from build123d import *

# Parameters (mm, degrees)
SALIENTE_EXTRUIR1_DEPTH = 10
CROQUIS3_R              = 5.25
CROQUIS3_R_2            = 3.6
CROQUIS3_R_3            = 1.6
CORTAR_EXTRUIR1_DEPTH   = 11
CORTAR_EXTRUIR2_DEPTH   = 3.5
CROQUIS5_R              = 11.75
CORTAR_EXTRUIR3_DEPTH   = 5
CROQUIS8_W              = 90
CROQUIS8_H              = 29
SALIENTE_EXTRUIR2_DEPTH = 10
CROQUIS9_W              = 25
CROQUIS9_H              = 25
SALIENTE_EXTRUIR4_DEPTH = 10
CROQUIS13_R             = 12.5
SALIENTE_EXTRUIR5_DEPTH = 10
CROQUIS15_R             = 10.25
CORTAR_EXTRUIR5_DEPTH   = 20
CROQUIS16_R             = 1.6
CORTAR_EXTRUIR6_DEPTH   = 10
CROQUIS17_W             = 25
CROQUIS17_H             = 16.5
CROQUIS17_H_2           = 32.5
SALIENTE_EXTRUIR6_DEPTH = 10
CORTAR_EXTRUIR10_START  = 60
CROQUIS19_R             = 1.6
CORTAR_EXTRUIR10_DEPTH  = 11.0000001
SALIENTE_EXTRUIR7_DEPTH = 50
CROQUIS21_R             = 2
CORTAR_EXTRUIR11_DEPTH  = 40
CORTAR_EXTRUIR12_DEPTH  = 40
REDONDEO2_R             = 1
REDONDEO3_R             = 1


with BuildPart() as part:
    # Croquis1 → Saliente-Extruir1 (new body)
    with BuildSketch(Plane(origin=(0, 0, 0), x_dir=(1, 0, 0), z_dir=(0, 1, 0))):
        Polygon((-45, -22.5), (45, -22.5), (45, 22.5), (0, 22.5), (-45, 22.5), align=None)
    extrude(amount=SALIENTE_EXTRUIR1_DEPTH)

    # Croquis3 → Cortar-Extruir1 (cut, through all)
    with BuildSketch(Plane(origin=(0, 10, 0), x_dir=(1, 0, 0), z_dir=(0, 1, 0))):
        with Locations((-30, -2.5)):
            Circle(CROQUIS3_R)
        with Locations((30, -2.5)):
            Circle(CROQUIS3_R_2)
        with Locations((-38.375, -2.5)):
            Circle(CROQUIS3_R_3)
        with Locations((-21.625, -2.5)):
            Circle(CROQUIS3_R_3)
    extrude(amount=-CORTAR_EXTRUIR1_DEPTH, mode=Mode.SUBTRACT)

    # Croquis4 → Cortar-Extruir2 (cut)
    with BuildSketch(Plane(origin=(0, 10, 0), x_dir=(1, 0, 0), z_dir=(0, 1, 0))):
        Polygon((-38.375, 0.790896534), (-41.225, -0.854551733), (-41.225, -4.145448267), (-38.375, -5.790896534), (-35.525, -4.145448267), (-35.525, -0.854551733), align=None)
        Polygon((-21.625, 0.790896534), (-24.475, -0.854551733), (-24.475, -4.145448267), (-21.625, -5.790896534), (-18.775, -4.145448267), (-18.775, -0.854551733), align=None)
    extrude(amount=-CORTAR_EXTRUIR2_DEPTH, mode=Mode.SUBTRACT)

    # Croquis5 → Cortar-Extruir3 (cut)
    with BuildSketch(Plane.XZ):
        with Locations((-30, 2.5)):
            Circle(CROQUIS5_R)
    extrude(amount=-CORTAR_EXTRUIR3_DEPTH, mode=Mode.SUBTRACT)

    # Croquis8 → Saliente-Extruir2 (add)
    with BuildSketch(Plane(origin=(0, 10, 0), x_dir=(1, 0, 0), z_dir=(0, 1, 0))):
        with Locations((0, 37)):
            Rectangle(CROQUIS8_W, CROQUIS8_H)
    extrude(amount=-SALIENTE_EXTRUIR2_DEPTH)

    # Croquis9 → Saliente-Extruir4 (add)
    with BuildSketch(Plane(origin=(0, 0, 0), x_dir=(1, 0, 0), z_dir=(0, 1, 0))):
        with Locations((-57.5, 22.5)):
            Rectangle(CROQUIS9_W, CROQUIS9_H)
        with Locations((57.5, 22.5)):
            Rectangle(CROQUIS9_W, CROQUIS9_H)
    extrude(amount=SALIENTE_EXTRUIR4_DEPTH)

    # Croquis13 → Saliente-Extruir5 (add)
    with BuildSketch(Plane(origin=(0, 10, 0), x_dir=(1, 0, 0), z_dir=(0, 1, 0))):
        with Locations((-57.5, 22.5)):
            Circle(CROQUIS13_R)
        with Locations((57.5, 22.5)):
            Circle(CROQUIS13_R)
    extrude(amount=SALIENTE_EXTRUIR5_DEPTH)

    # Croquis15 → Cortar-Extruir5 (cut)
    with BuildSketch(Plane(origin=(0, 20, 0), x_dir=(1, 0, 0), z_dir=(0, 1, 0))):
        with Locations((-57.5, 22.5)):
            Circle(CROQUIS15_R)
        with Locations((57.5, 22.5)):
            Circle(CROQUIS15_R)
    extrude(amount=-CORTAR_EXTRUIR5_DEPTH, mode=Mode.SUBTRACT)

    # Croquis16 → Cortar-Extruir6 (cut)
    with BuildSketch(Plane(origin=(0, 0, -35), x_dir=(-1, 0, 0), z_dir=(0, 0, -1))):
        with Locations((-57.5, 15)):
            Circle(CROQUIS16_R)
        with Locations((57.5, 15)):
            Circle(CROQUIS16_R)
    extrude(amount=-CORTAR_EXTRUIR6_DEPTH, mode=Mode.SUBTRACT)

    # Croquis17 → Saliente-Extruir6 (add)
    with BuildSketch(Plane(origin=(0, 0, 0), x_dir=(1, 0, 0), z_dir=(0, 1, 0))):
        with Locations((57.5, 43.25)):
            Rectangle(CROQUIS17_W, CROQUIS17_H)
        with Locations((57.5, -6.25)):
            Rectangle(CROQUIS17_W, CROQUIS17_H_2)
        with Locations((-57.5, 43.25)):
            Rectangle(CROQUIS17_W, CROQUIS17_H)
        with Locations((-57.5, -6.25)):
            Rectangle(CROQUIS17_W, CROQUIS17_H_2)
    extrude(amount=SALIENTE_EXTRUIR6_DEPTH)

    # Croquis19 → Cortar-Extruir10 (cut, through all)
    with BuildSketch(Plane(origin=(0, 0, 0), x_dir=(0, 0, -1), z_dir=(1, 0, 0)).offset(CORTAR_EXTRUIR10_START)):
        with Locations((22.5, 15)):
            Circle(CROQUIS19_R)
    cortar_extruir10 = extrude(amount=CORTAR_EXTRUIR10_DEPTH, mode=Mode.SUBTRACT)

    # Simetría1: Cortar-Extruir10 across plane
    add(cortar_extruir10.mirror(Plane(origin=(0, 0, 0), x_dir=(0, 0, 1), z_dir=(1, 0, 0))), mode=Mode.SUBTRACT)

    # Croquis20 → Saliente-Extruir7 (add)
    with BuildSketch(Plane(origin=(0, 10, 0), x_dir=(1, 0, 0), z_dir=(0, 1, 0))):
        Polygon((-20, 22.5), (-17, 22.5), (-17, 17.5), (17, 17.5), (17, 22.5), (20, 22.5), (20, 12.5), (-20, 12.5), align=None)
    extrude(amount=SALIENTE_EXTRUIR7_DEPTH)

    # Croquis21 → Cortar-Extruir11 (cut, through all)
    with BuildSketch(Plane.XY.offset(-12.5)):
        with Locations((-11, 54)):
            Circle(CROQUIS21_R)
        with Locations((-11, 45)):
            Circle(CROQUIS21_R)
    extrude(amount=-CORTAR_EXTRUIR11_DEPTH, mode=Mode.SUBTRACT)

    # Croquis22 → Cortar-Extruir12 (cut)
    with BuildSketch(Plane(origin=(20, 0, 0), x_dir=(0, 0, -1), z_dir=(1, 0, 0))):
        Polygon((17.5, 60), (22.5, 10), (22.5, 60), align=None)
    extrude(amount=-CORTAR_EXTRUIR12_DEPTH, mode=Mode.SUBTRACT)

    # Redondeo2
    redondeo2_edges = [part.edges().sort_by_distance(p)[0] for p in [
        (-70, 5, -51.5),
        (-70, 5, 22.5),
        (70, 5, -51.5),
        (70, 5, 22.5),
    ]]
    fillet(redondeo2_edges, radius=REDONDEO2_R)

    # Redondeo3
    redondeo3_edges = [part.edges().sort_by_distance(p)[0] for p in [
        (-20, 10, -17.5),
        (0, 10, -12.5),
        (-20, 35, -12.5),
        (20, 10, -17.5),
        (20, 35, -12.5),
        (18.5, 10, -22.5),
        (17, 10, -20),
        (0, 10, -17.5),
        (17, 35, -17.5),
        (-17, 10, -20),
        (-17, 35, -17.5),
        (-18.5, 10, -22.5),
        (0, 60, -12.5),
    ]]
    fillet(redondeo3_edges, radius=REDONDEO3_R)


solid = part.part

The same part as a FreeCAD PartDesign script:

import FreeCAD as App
import Part
import Sketcher

V = App.Vector
Q = App.Units.Quantity


def edges_at(feature, points):
    """Names of the edges that pass closest to the given points."""
    edges = feature.Shape.Edges
    near = lambda p: min(range(len(edges)), key=lambda i: edges[i].distToShape(Part.Vertex(*p))[0])
    return sorted({f"Edge{near(p) + 1}" for p in points})

doc = App.newDocument("Part")
body = doc.addObject("PartDesign::Body", "Body")

# Sketch on XZ plane
sketch1 = body.newObject("Sketcher::SketchObject", "Sketch")
sketch1.AttachmentSupport = (doc.getObject("XZ_Plane"), [""])
sketch1.MapMode = "FlatFace"
sketch1.addGeometry(Part.LineSegment(V(-45, 22, 0), V(45, 22, 0)), False)
sketch1.addGeometry(Part.LineSegment(V(45, 22, 0), V(45, -22, 0)), False)
sketch1.addGeometry(Part.LineSegment(V(45, -22, 0), V(-45, -22, 0)), False)
sketch1.addGeometry(Part.LineSegment(V(-45, -22, 0), V(-45, 22, 0)), False)
sketch1.addConstraint(Sketcher.Constraint("Coincident", 0, 2, 1, 1))
sketch1.addConstraint(Sketcher.Constraint("Coincident", 1, 2, 2, 1))
sketch1.addConstraint(Sketcher.Constraint("Coincident", 2, 2, 3, 1))
sketch1.addConstraint(Sketcher.Constraint("Coincident", 3, 2, 0, 1))
sketch1.addConstraint(Sketcher.Constraint("Horizontal", 0))
sketch1.addConstraint(Sketcher.Constraint("Vertical", 1))
sketch1.addConstraint(Sketcher.Constraint("Horizontal", 2))
sketch1.addConstraint(Sketcher.Constraint("Vertical", 3))
sketch1.addConstraint(Sketcher.Constraint("Symmetric", 0, 2, 2, 2, -1, 1))
sketch1.addConstraint(Sketcher.Constraint("DistanceX", 0, 1, 0, 2, Q("90 mm")))
sketch1.addConstraint(Sketcher.Constraint("DistanceY", 1, 2, 1, 1, Q("45 mm")))
pad1 = body.newObject("PartDesign::Pad", "Pad")
pad1.Profile = sketch1
pad1.Length = 10
pad1.Reversed = True

# Sketch on XZ plane
sketch2 = body.newObject("Sketcher::SketchObject", "Sketch001")
sketch2.AttachmentSupport = (doc.getObject("XZ_Plane"), [""])
sketch2.MapMode = "FlatFace"
sketch2.AttachmentOffset = App.Placement(V(0, 0, -10), App.Rotation())
sketch2.addGeometry(Part.Circle(V(-30, 2.5, 0), V(0, 0, 1), 5.2), False)
sketch2.addGeometry(Part.Circle(V(30, 2.5, 0), V(0, 0, 1), 3.6), False)
sketch2.addGeometry(Part.Circle(V(-38.4, 2.5, 0), V(0, 0, 1), 1.6), False)
sketch2.addGeometry(Part.Circle(V(-21.6, 2.5, 0), V(0, 0, 1), 1.6), False)
sketch2.addConstraint(Sketcher.Constraint("Equal", 2, 3))
sketch2.addConstraint(Sketcher.Constraint("Symmetric", 0, 3, 1, 3, -2))
sketch2.addConstraint(Sketcher.Constraint("Horizontal", 1, 3, 2, 3))
sketch2.addConstraint(Sketcher.Constraint("Horizontal", 2, 3, 3, 3))
sketch2.addConstraint(Sketcher.Constraint("Diameter", 0, Q("10.5 mm")))
sketch2.addConstraint(Sketcher.Constraint("Diameter", 1, Q("7.2 mm")))
sketch2.addConstraint(Sketcher.Constraint("Diameter", 2, Q("3.2 mm")))
sketch2.addConstraint(Sketcher.Constraint("DistanceX", 0, 3, -1, 1, Q("30 mm")))
sketch2.addConstraint(Sketcher.Constraint("DistanceY", -1, 1, 0, 3, Q("2.5 mm")))
sketch2.addConstraint(Sketcher.Constraint("DistanceX", 2, 3, 3, 3, Q("16.75 mm")))
sketch2.addConstraint(Sketcher.Constraint("DistanceX", 2, 3, -1, 1, Q("38.375 mm")))
pocket1 = body.newObject("PartDesign::Pocket", "Pocket")
pocket1.Profile = sketch2
pocket1.Type = "ThroughAll"
pocket1.Reversed = True

# Sketch on XZ plane
sketch3 = body.newObject("Sketcher::SketchObject", "Sketch002")
sketch3.AttachmentSupport = (doc.getObject("XZ_Plane"), [""])
sketch3.MapMode = "FlatFace"
sketch3.AttachmentOffset = App.Placement(V(0, 0, -10), App.Rotation())
sketch3.addGeometry(Part.LineSegment(V(-38.4, -0.8, 0), V(-41.2, 0.9, 0)), False)
sketch3.addGeometry(Part.LineSegment(V(-41.2, 0.9, 0), V(-41.2, 4.1, 0)), False)
sketch3.addGeometry(Part.LineSegment(V(-41.2, 4.1, 0), V(-38.4, 5.8, 0)), False)
sketch3.addGeometry(Part.LineSegment(V(-38.4, 5.8, 0), V(-35.5, 4.1, 0)), False)
sketch3.addGeometry(Part.LineSegment(V(-35.5, 4.1, 0), V(-35.5, 0.9, 0)), False)
sketch3.addGeometry(Part.LineSegment(V(-35.5, 0.9, 0), V(-38.4, -0.8, 0)), False)
sketch3.addGeometry(Part.LineSegment(V(-21.6, -0.8, 0), V(-24.5, 0.9, 0)), False)
sketch3.addGeometry(Part.LineSegment(V(-24.5, 0.9, 0), V(-24.5, 4.1, 0)), False)
sketch3.addGeometry(Part.LineSegment(V(-24.5, 4.1, 0), V(-21.6, 5.8, 0)), False)
sketch3.addGeometry(Part.LineSegment(V(-21.6, 5.8, 0), V(-18.8, 4.1, 0)), False)
sketch3.addGeometry(Part.LineSegment(V(-18.8, 4.1, 0), V(-18.8, 0.9, 0)), False)
sketch3.addGeometry(Part.LineSegment(V(-18.8, 0.9, 0), V(-21.6, -0.8, 0)), False)
sketch3.addConstraint(Sketcher.Constraint("Coincident", 0, 2, 1, 1))
sketch3.addConstraint(Sketcher.Constraint("Coincident", 1, 2, 2, 1))
sketch3.addConstraint(Sketcher.Constraint("Coincident", 2, 2, 3, 1))
sketch3.addConstraint(Sketcher.Constraint("Coincident", 3, 2, 4, 1))
sketch3.addConstraint(Sketcher.Constraint("Coincident", 4, 2, 5, 1))
sketch3.addConstraint(Sketcher.Constraint("Coincident", 5, 2, 0, 1))
sketch3.addConstraint(Sketcher.Constraint("Coincident", 6, 2, 7, 1))
sketch3.addConstraint(Sketcher.Constraint("Coincident", 7, 2, 8, 1))
sketch3.addConstraint(Sketcher.Constraint("Coincident", 8, 2, 9, 1))
sketch3.addConstraint(Sketcher.Constraint("Coincident", 9, 2, 10, 1))
sketch3.addConstraint(Sketcher.Constraint("Coincident", 10, 2, 11, 1))
sketch3.addConstraint(Sketcher.Constraint("Coincident", 11, 2, 6, 1))
sketch3.addConstraint(Sketcher.Constraint("Vertical", 1))
sketch3.addConstraint(Sketcher.Constraint("Vertical", 4))
sketch3.addConstraint(Sketcher.Constraint("Vertical", 7))
sketch3.addConstraint(Sketcher.Constraint("Vertical", 10))
sketch3.addConstraint(Sketcher.Constraint("Parallel", 0, 3))
sketch3.addConstraint(Sketcher.Constraint("Parallel", 2, 5))
sketch3.addConstraint(Sketcher.Constraint("Parallel", 3, 6))
sketch3.addConstraint(Sketcher.Constraint("Parallel", 5, 8))
sketch3.addConstraint(Sketcher.Constraint("Parallel", 6, 9))
sketch3.addConstraint(Sketcher.Constraint("Parallel", 8, 11))
sketch3.addConstraint(Sketcher.Constraint("Horizontal", 1, 2, 3, 2))
sketch3.addConstraint(Sketcher.Constraint("Horizontal", 0, 2, 4, 2))
sketch3.addConstraint(Sketcher.Constraint("Horizontal", 4, 2, 6, 2))
sketch3.addConstraint(Sketcher.Constraint("Horizontal", 3, 2, 7, 2))
sketch3.addConstraint(Sketcher.Constraint("Horizontal", 2, 2, 8, 2))
sketch3.addConstraint(Sketcher.Constraint("Horizontal", 7, 2, 9, 2))
sketch3.addConstraint(Sketcher.Constraint("Horizontal", 6, 2, 10, 2))
sketch3.addConstraint(Sketcher.Constraint("Vertical", 2, 2, 5, 2))
sketch3.addConstraint(Sketcher.Constraint("Angle", 0, Q("150 deg")))
sketch3.addConstraint(Sketcher.Constraint("DistanceX", 1, 2, 3, 2, Q("5.7 mm")))
sketch3.addConstraint(Sketcher.Constraint("DistanceX", 5, 2, 6, 2, Q("13.9 mm")))
sketch3.addConstraint(Sketcher.Constraint("DistanceX", 0, 2, -1, 1, Q("41.225 mm")))
sketch3.addConstraint(Sketcher.Constraint("DistanceY", 1, 1, 1, 2, Q("3.290897 mm")))
sketch3.addConstraint(Sketcher.Constraint("DistanceY", -1, 1, 0, 2, Q("0.854552 mm")))
pocket2 = body.newObject("PartDesign::Pocket", "Pocket001")
pocket2.Profile = sketch3
pocket2.Length = 3.5
pocket2.Reversed = True

# Sketch on XZ plane
sketch4 = body.newObject("Sketcher::SketchObject", "Sketch003")
sketch4.AttachmentSupport = (doc.getObject("XZ_Plane"), [""])
sketch4.MapMode = "FlatFace"
sketch4.addGeometry(Part.Circle(V(-30, 2, 0), V(0, 0, 1), 12), False)
sketch4.addConstraint(Sketcher.Constraint("Diameter", 0, Q("23.5 mm")))
sketch4.addConstraint(Sketcher.Constraint("DistanceX", 0, 3, -1, 1, Q("30 mm")))
sketch4.addConstraint(Sketcher.Constraint("DistanceY", -1, 1, 0, 3, Q("2.5 mm")))
pocket3 = body.newObject("PartDesign::Pocket", "Pocket002")
pocket3.Profile = sketch4
pocket3.Length = 5

# Sketch on XZ plane
sketch5 = body.newObject("Sketcher::SketchObject", "Sketch004")
sketch5.AttachmentSupport = (doc.getObject("XZ_Plane"), [""])
sketch5.MapMode = "FlatFace"
sketch5.AttachmentOffset = App.Placement(V(0, 0, -10), App.Rotation())
sketch5.addGeometry(Part.LineSegment(V(-45, -52, 0), V(-45, -22, 0)), False)
sketch5.addGeometry(Part.LineSegment(V(-45, -22, 0), V(45, -22, 0)), False)
sketch5.addGeometry(Part.LineSegment(V(45, -22, 0), V(45, -52, 0)), False)
sketch5.addGeometry(Part.LineSegment(V(45, -52, 0), V(-45, -52, 0)), False)
sketch5.addConstraint(Sketcher.Constraint("Coincident", 0, 2, 1, 1))
sketch5.addConstraint(Sketcher.Constraint("Coincident", 1, 2, 2, 1))
sketch5.addConstraint(Sketcher.Constraint("Coincident", 2, 2, 3, 1))
sketch5.addConstraint(Sketcher.Constraint("Coincident", 3, 2, 0, 1))
sketch5.addConstraint(Sketcher.Constraint("Vertical", 0))
sketch5.addConstraint(Sketcher.Constraint("Horizontal", 1))
sketch5.addConstraint(Sketcher.Constraint("Vertical", 2))
sketch5.addConstraint(Sketcher.Constraint("Horizontal", 3))
sketch5.addConstraint(Sketcher.Constraint("DistanceX", 1, 1, 1, 2, Q("90 mm")))
sketch5.addConstraint(Sketcher.Constraint("DistanceY", 0, 1, 0, 2, Q("29 mm")))
sketch5.addConstraint(Sketcher.Constraint("DistanceX", 0, 2, -1, 1, Q("45 mm")))
sketch5.addConstraint(Sketcher.Constraint("DistanceY", 0, 2, -1, 1, Q("22.5 mm")))
pad2 = body.newObject("PartDesign::Pad", "Pad001")
pad2.Profile = sketch5
pad2.Length = 10

# Sketch on XZ plane
sketch6 = body.newObject("Sketcher::SketchObject", "Sketch005")
sketch6.AttachmentSupport = (doc.getObject("XZ_Plane"), [""])
sketch6.MapMode = "FlatFace"
sketch6.addGeometry(Part.LineSegment(V(-70, -35, 0), V(-70, -10, 0)), False)
sketch6.addGeometry(Part.LineSegment(V(-70, -10, 0), V(-45, -10, 0)), False)
sketch6.addGeometry(Part.LineSegment(V(-45, -10, 0), V(-45, -35, 0)), False)
sketch6.addGeometry(Part.LineSegment(V(-45, -35, 0), V(-70, -35, 0)), False)
sketch6.addGeometry(Part.LineSegment(V(45, -35, 0), V(45, -10, 0)), False)
sketch6.addGeometry(Part.LineSegment(V(45, -10, 0), V(70, -10, 0)), False)
sketch6.addGeometry(Part.LineSegment(V(70, -10, 0), V(70, -35, 0)), False)
sketch6.addGeometry(Part.LineSegment(V(70, -35, 0), V(45, -35, 0)), False)
sketch6.addConstraint(Sketcher.Constraint("Coincident", 0, 2, 1, 1))
sketch6.addConstraint(Sketcher.Constraint("Coincident", 1, 2, 2, 1))
sketch6.addConstraint(Sketcher.Constraint("Coincident", 2, 2, 3, 1))
sketch6.addConstraint(Sketcher.Constraint("Coincident", 3, 2, 0, 1))
sketch6.addConstraint(Sketcher.Constraint("Coincident", 4, 2, 5, 1))
sketch6.addConstraint(Sketcher.Constraint("Coincident", 5, 2, 6, 1))
sketch6.addConstraint(Sketcher.Constraint("Coincident", 6, 2, 7, 1))
sketch6.addConstraint(Sketcher.Constraint("Coincident", 7, 2, 4, 1))
sketch6.addConstraint(Sketcher.Constraint("Vertical", 0))
sketch6.addConstraint(Sketcher.Constraint("Horizontal", 1))
sketch6.addConstraint(Sketcher.Constraint("Vertical", 2))
sketch6.addConstraint(Sketcher.Constraint("Horizontal", 3))
sketch6.addConstraint(Sketcher.Constraint("Vertical", 4))
sketch6.addConstraint(Sketcher.Constraint("Horizontal", 5))
sketch6.addConstraint(Sketcher.Constraint("Vertical", 6))
sketch6.addConstraint(Sketcher.Constraint("Horizontal", 7))
sketch6.addConstraint(Sketcher.Constraint("Symmetric", 1, 2, 4, 2, -2))
sketch6.addConstraint(Sketcher.Constraint("Symmetric", 3, 2, 6, 2, -2))
sketch6.addConstraint(Sketcher.Constraint("Equal", 7, 0))
sketch6.addConstraint(Sketcher.Constraint("DistanceX", 1, 1, 1, 2, Q("25 mm")))
sketch6.addConstraint(Sketcher.Constraint("DistanceX", 0, 2, -1, 1, Q("70 mm")))
sketch6.addConstraint(Sketcher.Constraint("DistanceY", 0, 2, -1, 1, Q("10 mm")))
pad3 = body.newObject("PartDesign::Pad", "Pad002")
pad3.Profile = sketch6
pad3.Length = 10
pad3.Reversed = True

# Sketch on XZ plane
sketch7 = body.newObject("Sketcher::SketchObject", "Sketch006")
sketch7.AttachmentSupport = (doc.getObject("XZ_Plane"), [""])
sketch7.MapMode = "FlatFace"
sketch7.AttachmentOffset = App.Placement(V(0, 0, -10), App.Rotation())
sketch7.addGeometry(Part.Circle(V(-58, -22, 0), V(0, 0, 1), 12), False)
sketch7.addGeometry(Part.Circle(V(58, -22, 0), V(0, 0, 1), 12), False)
sketch7.addConstraint(Sketcher.Constraint("Equal", 0, 1))
sketch7.addConstraint(Sketcher.Constraint("Symmetric", 0, 3, 1, 3, -2))
sketch7.addConstraint(Sketcher.Constraint("Diameter", 0, Q("25 mm")))
sketch7.addConstraint(Sketcher.Constraint("DistanceX", 0, 3, 1, 3, Q("115 mm")))
sketch7.addConstraint(Sketcher.Constraint("DistanceY", 0, 3, -1, 1, Q("22.5 mm")))
pad4 = body.newObject("PartDesign::Pad", "Pad003")
pad4.Profile = sketch7
pad4.Length = 10
pad4.Reversed = True

# Sketch on XZ plane
sketch8 = body.newObject("Sketcher::SketchObject", "Sketch007")
sketch8.AttachmentSupport = (doc.getObject("XZ_Plane"), [""])
sketch8.MapMode = "FlatFace"
sketch8.AttachmentOffset = App.Placement(V(0, 0, -20), App.Rotation())
sketch8.addGeometry(Part.Circle(V(-58, -22, 0), V(0, 0, 1), 10), False)
sketch8.addGeometry(Part.Circle(V(58, -22, 0), V(0, 0, 1), 10), False)
sketch8.addConstraint(Sketcher.Constraint("Equal", 0, 1))
sketch8.addConstraint(Sketcher.Constraint("Symmetric", 0, 3, 1, 3, -2))
sketch8.addConstraint(Sketcher.Constraint("Diameter", 0, Q("20.5 mm")))
sketch8.addConstraint(Sketcher.Constraint("DistanceX", 0, 3, 1, 3, Q("115 mm")))
sketch8.addConstraint(Sketcher.Constraint("DistanceY", 0, 3, -1, 1, Q("22.5 mm")))
pocket4 = body.newObject("PartDesign::Pocket", "Pocket003")
pocket4.Profile = sketch8
pocket4.Length = 20
pocket4.Reversed = True

# Sketch on XY plane
sketch9 = body.newObject("Sketcher::SketchObject", "Sketch008")
sketch9.AttachmentSupport = (doc.getObject("XY_Plane"), [""])
sketch9.MapMode = "FlatFace"
sketch9.AttachmentOffset = App.Placement(V(0, 0, -35), App.Rotation())
sketch9.addGeometry(Part.Circle(V(57.5, 15, 0), V(0, 0, 1), 1.6), False)
sketch9.addGeometry(Part.Circle(V(-57.5, 15, 0), V(0, 0, 1), 1.6), False)
sketch9.addConstraint(Sketcher.Constraint("Equal", 0, 1))
sketch9.addConstraint(Sketcher.Constraint("Symmetric", 0, 3, 1, 3, -2))
sketch9.addConstraint(Sketcher.Constraint("Diameter", 0, Q("3.2 mm")))
sketch9.addConstraint(Sketcher.Constraint("DistanceY", -1, 1, 0, 3, Q("15 mm")))
sketch9.addConstraint(Sketcher.Constraint("DistanceX", 1, 3, 0, 3, Q("115 mm")))
pocket5 = body.newObject("PartDesign::Pocket", "Pocket004")
pocket5.Profile = sketch9
pocket5.Length = 10
pocket5.Reversed = True

# Sketch on XZ plane
sketch10 = body.newObject("Sketcher::SketchObject", "Sketch009")
sketch10.AttachmentSupport = (doc.getObject("XZ_Plane"), [""])
sketch10.MapMode = "FlatFace"
sketch10.addGeometry(Part.LineSegment(V(45, -52, 0), V(45, -35, 0)), False)
sketch10.addGeometry(Part.LineSegment(V(45, -35, 0), V(70, -35, 0)), False)
sketch10.addGeometry(Part.LineSegment(V(70, -35, 0), V(70, -52, 0)), False)
sketch10.addGeometry(Part.LineSegment(V(70, -52, 0), V(45, -52, 0)), False)
sketch10.addGeometry(Part.LineSegment(V(45, -10, 0), V(45, 22, 0)), False)
sketch10.addGeometry(Part.LineSegment(V(45, 22, 0), V(70, 22, 0)), False)
sketch10.addGeometry(Part.LineSegment(V(70, 22, 0), V(70, -10, 0)), False)
sketch10.addGeometry(Part.LineSegment(V(70, -10, 0), V(45, -10, 0)), False)
sketch10.addGeometry(Part.LineSegment(V(-70, -52, 0), V(-70, -35, 0)), False)
sketch10.addGeometry(Part.LineSegment(V(-70, -35, 0), V(-45, -35, 0)), False)
sketch10.addGeometry(Part.LineSegment(V(-45, -35, 0), V(-45, -52, 0)), False)
sketch10.addGeometry(Part.LineSegment(V(-45, -52, 0), V(-70, -52, 0)), False)
sketch10.addGeometry(Part.LineSegment(V(-70, -10, 0), V(-70, 22, 0)), False)
sketch10.addGeometry(Part.LineSegment(V(-70, 22, 0), V(-45, 22, 0)), False)
sketch10.addGeometry(Part.LineSegment(V(-45, 22, 0), V(-45, -10, 0)), False)
sketch10.addGeometry(Part.LineSegment(V(-45, -10, 0), V(-70, -10, 0)), False)
sketch10.addConstraint(Sketcher.Constraint("Coincident", 0, 2, 1, 1))
sketch10.addConstraint(Sketcher.Constraint("Coincident", 1, 2, 2, 1))
sketch10.addConstraint(Sketcher.Constraint("Coincident", 2, 2, 3, 1))
sketch10.addConstraint(Sketcher.Constraint("Coincident", 3, 2, 0, 1))
sketch10.addConstraint(Sketcher.Constraint("Coincident", 4, 2, 5, 1))
sketch10.addConstraint(Sketcher.Constraint("Coincident", 5, 2, 6, 1))
sketch10.addConstraint(Sketcher.Constraint("Coincident", 6, 2, 7, 1))
sketch10.addConstraint(Sketcher.Constraint("Coincident", 7, 2, 4, 1))
sketch10.addConstraint(Sketcher.Constraint("Coincident", 8, 2, 9, 1))
sketch10.addConstraint(Sketcher.Constraint("Coincident", 9, 2, 10, 1))
sketch10.addConstraint(Sketcher.Constraint("Coincident", 10, 2, 11, 1))
sketch10.addConstraint(Sketcher.Constraint("Coincident", 11, 2, 8, 1))
sketch10.addConstraint(Sketcher.Constraint("Coincident", 12, 2, 13, 1))
sketch10.addConstraint(Sketcher.Constraint("Coincident", 13, 2, 14, 1))
sketch10.addConstraint(Sketcher.Constraint("Coincident", 14, 2, 15, 1))
sketch10.addConstraint(Sketcher.Constraint("Coincident", 15, 2, 12, 1))
sketch10.addConstraint(Sketcher.Constraint("Vertical", 0))
sketch10.addConstraint(Sketcher.Constraint("Horizontal", 1))
sketch10.addConstraint(Sketcher.Constraint("Vertical", 2))
sketch10.addConstraint(Sketcher.Constraint("Horizontal", 3))
sketch10.addConstraint(Sketcher.Constraint("Vertical", 4))
sketch10.addConstraint(Sketcher.Constraint("Horizontal", 5))
sketch10.addConstraint(Sketcher.Constraint("Vertical", 6))
sketch10.addConstraint(Sketcher.Constraint("Horizontal", 7))
sketch10.addConstraint(Sketcher.Constraint("Vertical", 8))
sketch10.addConstraint(Sketcher.Constraint("Horizontal", 9))
sketch10.addConstraint(Sketcher.Constraint("Vertical", 10))
sketch10.addConstraint(Sketcher.Constraint("Horizontal", 11))
sketch10.addConstraint(Sketcher.Constraint("Vertical", 12))
sketch10.addConstraint(Sketcher.Constraint("Horizontal", 13))
sketch10.addConstraint(Sketcher.Constraint("Vertical", 14))
sketch10.addConstraint(Sketcher.Constraint("Horizontal", 15))
sketch10.addConstraint(Sketcher.Constraint("Symmetric", 1, 2, 8, 2, -2))
sketch10.addConstraint(Sketcher.Constraint("Symmetric", 3, 2, 10, 2, -2))
sketch10.addConstraint(Sketcher.Constraint("Symmetric", 5, 2, 12, 2, -2))
sketch10.addConstraint(Sketcher.Constraint("Symmetric", 7, 2, 14, 2, -2))
sketch10.addConstraint(Sketcher.Constraint("Vertical", 3, 2, 4, 2))
sketch10.addConstraint(Sketcher.Constraint("Vertical", 2, 2, 5, 2))
sketch10.addConstraint(Sketcher.Constraint("DistanceX", 1, 1, 1, 2, Q("25 mm")))
sketch10.addConstraint(Sketcher.Constraint("DistanceY", 0, 1, 0, 2, Q("16.5 mm")))
sketch10.addConstraint(Sketcher.Constraint("DistanceY", 4, 1, 4, 2, Q("32.5 mm")))
sketch10.addConstraint(Sketcher.Constraint("DistanceX", -1, 1, 0, 2, Q("45 mm")))
sketch10.addConstraint(Sketcher.Constraint("DistanceY", 0, 2, -1, 1, Q("35 mm")))
sketch10.addConstraint(Sketcher.Constraint("DistanceY", 6, 2, -1, 1, Q("10 mm")))
pad5 = body.newObject("PartDesign::Pad", "Pad004")
pad5.Profile = sketch10
pad5.Length = 10
pad5.Reversed = True

# Sketch on YZ plane
sketch11 = body.newObject("Sketcher::SketchObject", "Sketch010")
sketch11.AttachmentSupport = (doc.getObject("YZ_Plane"), [""])
sketch11.MapMode = "FlatFace"
sketch11.AttachmentOffset = App.Placement(V(0, 0, 60), App.Rotation())
sketch11.addGeometry(Part.Circle(V(15, -22.5, 0), V(0, 0, 1), 1.6), False)
sketch11.addConstraint(Sketcher.Constraint("Diameter", 0, Q("3.2 mm")))
sketch11.addConstraint(Sketcher.Constraint("DistanceX", -1, 1, 0, 3, Q("15 mm")))
sketch11.addConstraint(Sketcher.Constraint("DistanceY", 0, 3, -1, 1, Q("22.5 mm")))
pocket6 = body.newObject("PartDesign::Pocket", "Pocket005")
pocket6.Profile = sketch11
pocket6.Type = "ThroughAll"
pocket6.Reversed = True
doc.recompute()

mirrored = body.newObject("PartDesign::Mirrored", "Mirrored")
mirrored.Originals = [pocket6]
mirrored.MirrorPlane = (doc.getObject("YZ_Plane"), [""])
body.Tip = mirrored

# Sketch on XZ plane
sketch12 = body.newObject("Sketcher::SketchObject", "Sketch011")
sketch12.AttachmentSupport = (doc.getObject("XZ_Plane"), [""])
sketch12.MapMode = "FlatFace"
sketch12.AttachmentOffset = App.Placement(V(0, 0, -10), App.Rotation())
sketch12.addGeometry(Part.LineSegment(V(-17, -22.5, 0), V(-20, -22.5, 0)), False)
sketch12.addGeometry(Part.LineSegment(V(-20, -22.5, 0), V(-20, -12.5, 0)), False)
sketch12.addGeometry(Part.LineSegment(V(-20, -12.5, 0), V(20, -12.5, 0)), False)
sketch12.addGeometry(Part.LineSegment(V(20, -12.5, 0), V(20, -22.5, 0)), False)
sketch12.addGeometry(Part.LineSegment(V(20, -22.5, 0), V(17, -22.5, 0)), False)
sketch12.addGeometry(Part.LineSegment(V(17, -22.5, 0), V(17, -17.5, 0)), False)
sketch12.addGeometry(Part.LineSegment(V(17, -17.5, 0), V(-17, -17.5, 0)), False)
sketch12.addGeometry(Part.LineSegment(V(-17, -17.5, 0), V(-17, -22.5, 0)), False)
sketch12.addConstraint(Sketcher.Constraint("Coincident", 0, 2, 1, 1))
sketch12.addConstraint(Sketcher.Constraint("Coincident", 1, 2, 2, 1))
sketch12.addConstraint(Sketcher.Constraint("Coincident", 2, 2, 3, 1))
sketch12.addConstraint(Sketcher.Constraint("Coincident", 3, 2, 4, 1))
sketch12.addConstraint(Sketcher.Constraint("Coincident", 4, 2, 5, 1))
sketch12.addConstraint(Sketcher.Constraint("Coincident", 5, 2, 6, 1))
sketch12.addConstraint(Sketcher.Constraint("Coincident", 6, 2, 7, 1))
sketch12.addConstraint(Sketcher.Constraint("Coincident", 7, 2, 0, 1))
sketch12.addConstraint(Sketcher.Constraint("Horizontal", 0))
sketch12.addConstraint(Sketcher.Constraint("Vertical", 1))
sketch12.addConstraint(Sketcher.Constraint("Horizontal", 2))
sketch12.addConstraint(Sketcher.Constraint("Vertical", 3))
sketch12.addConstraint(Sketcher.Constraint("Horizontal", 4))
sketch12.addConstraint(Sketcher.Constraint("Vertical", 5))
sketch12.addConstraint(Sketcher.Constraint("Horizontal", 6))
sketch12.addConstraint(Sketcher.Constraint("Vertical", 7))
sketch12.addConstraint(Sketcher.Constraint("Symmetric", 0, 2, 3, 2, -2))
sketch12.addConstraint(Sketcher.Constraint("Equal", 0, 4))
sketch12.addConstraint(Sketcher.Constraint("DistanceX", 0, 2, 0, 1, Q("3 mm")))
sketch12.addConstraint(Sketcher.Constraint("DistanceX", 2, 1, 2, 2, Q("40 mm")))
sketch12.addConstraint(Sketcher.Constraint("DistanceY", 1, 1, 1, 2, Q("10 mm")))
sketch12.addConstraint(Sketcher.Constraint("DistanceY", 5, 1, 5, 2, Q("5 mm")))
sketch12.addConstraint(Sketcher.Constraint("DistanceY", 0, 2, -1, 1, Q("22.5 mm")))
pad6 = body.newObject("PartDesign::Pad", "Pad005")
pad6.Profile = sketch12
pad6.Length = 50
pad6.Reversed = True

# Sketch on XY plane
sketch13 = body.newObject("Sketcher::SketchObject", "Sketch012")
sketch13.AttachmentSupport = (doc.getObject("XY_Plane"), [""])
sketch13.MapMode = "FlatFace"
sketch13.AttachmentOffset = App.Placement(V(0, 0, -12.5), App.Rotation())
sketch13.addGeometry(Part.Circle(V(-11, 54, 0), V(0, 0, 1), 2), False)
sketch13.addGeometry(Part.Circle(V(-11, 45, 0), V(0, 0, 1), 2), False)
sketch13.addConstraint(Sketcher.Constraint("Equal", 0, 1))
sketch13.addConstraint(Sketcher.Constraint("Vertical", 0, 3, 1, 3))
sketch13.addConstraint(Sketcher.Constraint("Diameter", 0, Q("4 mm")))
sketch13.addConstraint(Sketcher.Constraint("DistanceX", 0, 3, -1, 1, Q("11 mm")))
sketch13.addConstraint(Sketcher.Constraint("DistanceY", -1, 1, 0, 3, Q("54 mm")))
sketch13.addConstraint(Sketcher.Constraint("DistanceY", -1, 1, 1, 3, Q("45 mm")))
pocket7 = body.newObject("PartDesign::Pocket", "Pocket006")
pocket7.Profile = sketch13
pocket7.Type = "ThroughAll"

# Sketch on YZ plane
sketch14 = body.newObject("Sketcher::SketchObject", "Sketch013")
sketch14.AttachmentSupport = (doc.getObject("YZ_Plane"), [""])
sketch14.MapMode = "FlatFace"
sketch14.AttachmentOffset = App.Placement(V(0, 0, 20), App.Rotation())
sketch14.addGeometry(Part.LineSegment(V(60, -18, 0), V(10, -22, 0)), False)
sketch14.addGeometry(Part.LineSegment(V(10, -22, 0), V(60, -22, 0)), False)
sketch14.addGeometry(Part.LineSegment(V(60, -22, 0), V(60, -18, 0)), False)
sketch14.addConstraint(Sketcher.Constraint("Coincident", 0, 2, 1, 1))
sketch14.addConstraint(Sketcher.Constraint("Coincident", 1, 2, 2, 1))
sketch14.addConstraint(Sketcher.Constraint("Coincident", 2, 2, 0, 1))
sketch14.addConstraint(Sketcher.Constraint("Horizontal", 1))
sketch14.addConstraint(Sketcher.Constraint("Vertical", 2))
sketch14.addConstraint(Sketcher.Constraint("DistanceX", 1, 1, 1, 2, Q("50 mm")))
sketch14.addConstraint(Sketcher.Constraint("DistanceY", 2, 1, 2, 2, Q("5 mm")))
sketch14.addConstraint(Sketcher.Constraint("DistanceX", -1, 1, 0, 2, Q("10 mm")))
sketch14.addConstraint(Sketcher.Constraint("DistanceY", 0, 2, -1, 1, Q("22.5 mm")))
pocket8 = body.newObject("PartDesign::Pocket", "Pocket007")
pocket8.Profile = sketch14
pocket8.Length = 40
doc.recompute()

fillet = body.newObject("PartDesign::Fillet", "Fillet")
fillet.Base = (pocket8, edges_at(pocket8, [
    (-70, 5, -51.5),
    (-70, 5, 22.5),
    (70, 5, -51.5),
    (70, 5, 22.5),
]))
fillet.Radius = 1
doc.recompute()

fillet2 = body.newObject("PartDesign::Fillet", "Fillet001")
fillet2.Base = (fillet, edges_at(fillet, [
    (-20, 10, -17.5),
    (0, 10, -12.5),
    (-20, 35, -12.5),
    (20, 10, -17.5),
    (20, 35, -12.5),
    (18.5, 10, -22.5),
    (17, 10, -20),
    (0, 10, -17.5),
    (17, 35, -17.5),
    (-17, 10, -20),
    (-17, 35, -17.5),
    (-18.5, 10, -22.5),
    (0, 60, -12.5),
]))
fillet2.Radius = 1

doc.recompute()
